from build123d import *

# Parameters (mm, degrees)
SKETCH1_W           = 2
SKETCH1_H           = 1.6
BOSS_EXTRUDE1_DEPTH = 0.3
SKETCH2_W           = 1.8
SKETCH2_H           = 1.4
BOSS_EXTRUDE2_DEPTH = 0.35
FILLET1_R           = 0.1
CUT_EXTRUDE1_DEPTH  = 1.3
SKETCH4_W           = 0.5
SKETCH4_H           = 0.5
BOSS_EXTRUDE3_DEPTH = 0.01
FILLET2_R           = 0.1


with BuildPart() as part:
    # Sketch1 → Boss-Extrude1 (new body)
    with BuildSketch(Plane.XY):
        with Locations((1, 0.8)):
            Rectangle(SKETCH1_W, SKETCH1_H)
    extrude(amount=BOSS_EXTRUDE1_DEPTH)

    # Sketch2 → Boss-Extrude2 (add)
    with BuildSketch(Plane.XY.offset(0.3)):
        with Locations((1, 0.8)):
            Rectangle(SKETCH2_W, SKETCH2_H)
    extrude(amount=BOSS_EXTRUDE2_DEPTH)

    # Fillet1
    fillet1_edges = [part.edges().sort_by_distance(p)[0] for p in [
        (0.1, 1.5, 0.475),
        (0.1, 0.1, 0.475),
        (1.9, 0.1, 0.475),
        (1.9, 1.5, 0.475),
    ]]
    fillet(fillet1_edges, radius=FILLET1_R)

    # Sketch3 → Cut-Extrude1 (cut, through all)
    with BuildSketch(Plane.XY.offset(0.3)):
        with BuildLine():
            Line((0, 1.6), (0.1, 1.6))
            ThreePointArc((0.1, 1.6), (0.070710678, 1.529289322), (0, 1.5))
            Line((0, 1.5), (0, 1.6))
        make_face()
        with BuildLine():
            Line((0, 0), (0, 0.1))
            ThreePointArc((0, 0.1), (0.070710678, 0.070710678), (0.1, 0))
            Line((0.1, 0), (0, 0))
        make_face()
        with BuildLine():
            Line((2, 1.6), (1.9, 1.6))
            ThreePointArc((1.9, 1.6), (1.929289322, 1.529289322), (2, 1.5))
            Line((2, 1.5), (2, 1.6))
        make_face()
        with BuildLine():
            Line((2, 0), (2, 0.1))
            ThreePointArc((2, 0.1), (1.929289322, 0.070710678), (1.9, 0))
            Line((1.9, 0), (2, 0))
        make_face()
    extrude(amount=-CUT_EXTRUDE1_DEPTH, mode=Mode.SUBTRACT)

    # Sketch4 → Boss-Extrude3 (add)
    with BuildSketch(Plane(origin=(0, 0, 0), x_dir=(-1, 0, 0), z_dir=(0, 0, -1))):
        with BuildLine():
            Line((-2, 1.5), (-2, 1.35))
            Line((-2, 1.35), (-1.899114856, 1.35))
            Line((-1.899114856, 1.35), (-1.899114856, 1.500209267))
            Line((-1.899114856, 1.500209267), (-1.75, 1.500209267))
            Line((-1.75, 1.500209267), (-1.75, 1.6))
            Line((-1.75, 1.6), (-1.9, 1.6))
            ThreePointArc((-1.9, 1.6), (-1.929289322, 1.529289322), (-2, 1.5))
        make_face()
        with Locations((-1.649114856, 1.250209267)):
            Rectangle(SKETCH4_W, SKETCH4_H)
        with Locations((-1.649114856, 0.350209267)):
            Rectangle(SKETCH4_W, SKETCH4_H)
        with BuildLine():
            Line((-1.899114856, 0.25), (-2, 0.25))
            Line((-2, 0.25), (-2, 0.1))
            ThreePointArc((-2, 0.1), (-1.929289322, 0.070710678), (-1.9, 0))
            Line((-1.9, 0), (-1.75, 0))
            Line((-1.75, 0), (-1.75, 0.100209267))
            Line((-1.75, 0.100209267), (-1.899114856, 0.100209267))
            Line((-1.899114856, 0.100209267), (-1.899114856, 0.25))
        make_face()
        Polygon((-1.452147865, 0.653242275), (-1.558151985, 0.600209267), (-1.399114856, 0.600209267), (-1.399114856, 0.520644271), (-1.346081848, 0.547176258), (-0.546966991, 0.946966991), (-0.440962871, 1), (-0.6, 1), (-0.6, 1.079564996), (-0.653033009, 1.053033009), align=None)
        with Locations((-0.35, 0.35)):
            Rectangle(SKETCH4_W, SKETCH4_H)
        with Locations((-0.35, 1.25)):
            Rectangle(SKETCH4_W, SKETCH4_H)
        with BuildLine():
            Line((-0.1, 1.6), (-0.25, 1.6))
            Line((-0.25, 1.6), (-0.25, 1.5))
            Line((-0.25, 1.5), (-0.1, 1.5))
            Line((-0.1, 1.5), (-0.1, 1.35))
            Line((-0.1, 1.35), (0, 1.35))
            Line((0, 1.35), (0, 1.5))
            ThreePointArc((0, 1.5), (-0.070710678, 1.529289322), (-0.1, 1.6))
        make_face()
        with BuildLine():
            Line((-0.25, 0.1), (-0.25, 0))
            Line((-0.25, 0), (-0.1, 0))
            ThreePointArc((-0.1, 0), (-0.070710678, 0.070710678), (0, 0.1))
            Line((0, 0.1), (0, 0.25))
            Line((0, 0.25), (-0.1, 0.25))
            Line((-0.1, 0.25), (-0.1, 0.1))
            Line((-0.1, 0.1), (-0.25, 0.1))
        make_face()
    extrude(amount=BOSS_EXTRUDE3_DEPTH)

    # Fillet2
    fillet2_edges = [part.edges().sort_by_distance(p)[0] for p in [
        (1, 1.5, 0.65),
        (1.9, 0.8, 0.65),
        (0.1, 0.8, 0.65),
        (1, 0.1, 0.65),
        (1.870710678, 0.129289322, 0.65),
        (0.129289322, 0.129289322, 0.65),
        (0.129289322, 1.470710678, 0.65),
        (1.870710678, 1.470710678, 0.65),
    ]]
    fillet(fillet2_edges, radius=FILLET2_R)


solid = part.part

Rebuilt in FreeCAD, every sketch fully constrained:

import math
import FreeCAD as App
import Part
import Sketcher
from FreeCAD import Vector
Q = App.Units.Quantity


def edges_at(feature, points):
    """Names of the edges that pass closest to the given points."""
    edges = feature.Shape.Edges
    near = lambda p: min(range(len(edges)), key=lambda i: edges[i].distToShape(Part.Vertex(*p))[0])
    return sorted({f"Edge{near(p) + 1}" for p in points})

doc = App.newDocument("Part")
body = doc.addObject("PartDesign::Body", "Body")

# Sketch on XY plane
sketch1 = doc.addObject("Sketcher::SketchObject", "Sketch")
body.addObject(sketch1)
sketch1.AttachmentSupport = (doc.XY_Plane, [""])
sketch1.MapMode = "FlatFace"
sketch1.addGeometry([
    Part.LineSegment(Vector(0, 1.6, 0), Vector(0, 0, 0)),
    Part.LineSegment(Vector(0, 0, 0), Vector(2, 0, 0)),
    Part.LineSegment(Vector(2, 0, 0), Vector(2, 1.6, 0)),
    Part.LineSegment(Vector(2, 1.6, 0), Vector(0, 1.6, 0)),
], False)
sketch1.addConstraint([
    Sketcher.Constraint("Coincident", 0, 2, 1, 1),
    Sketcher.Constraint("Coincident", 1, 2, 2, 1),
    Sketcher.Constraint("Coincident", 2, 2, 3, 1),
    Sketcher.Constraint("Coincident", 3, 2, 0, 1),
    Sketcher.Constraint("Vertical", 0),
    Sketcher.Constraint("Horizontal", 1),
    Sketcher.Constraint("Vertical", 2),
    Sketcher.Constraint("Horizontal", 3),
    Sketcher.Constraint("Coincident", 0, 2, -1, 1),
    Sketcher.Constraint("DistanceX", 1, 1, 1, 2, Q("2 mm")),
    Sketcher.Constraint("DistanceY", 0, 2, 0, 1, Q("1.6 mm")),
])
pad1 = doc.addObject("PartDesign::Pad", "Pad")
body.addObject(pad1)
pad1.Profile = sketch1
pad1.Length = 0.3

# Sketch on XY plane
sketch2 = doc.addObject("Sketcher::SketchObject", "Sketch001")
body.addObject(sketch2)
sketch2.AttachmentSupport = (doc.XY_Plane, [""])
sketch2.MapMode = "FlatFace"
sketch2.AttachmentOffset = App.Placement(Vector(0, 0, 0.3), App.Rotation())
sketch2.addGeometry([
    Part.LineSegment(Vector(0.1, 1.5, 0), Vector(0.1, 0.1, 0)),
    Part.LineSegment(Vector(0.1, 0.1, 0), Vector(1.9, 0.1, 0)),
    Part.LineSegment(Vector(1.9, 0.1, 0), Vector(1.9, 1.5, 0)),
    Part.LineSegment(Vector(1.9, 1.5, 0), Vector(0.1, 1.5, 0)),
], False)
sketch2.addConstraint([
    Sketcher.Constraint("Coincident", 0, 2, 1, 1),
    Sketcher.Constraint("Coincident", 1, 2, 2, 1),
    Sketcher.Constraint("Coincident", 2, 2, 3, 1),
    Sketcher.Constraint("Coincident", 3, 2, 0, 1),
    Sketcher.Constraint("Vertical", 0),
    Sketcher.Constraint("Horizontal", 1),
    Sketcher.Constraint("Vertical", 2),
    Sketcher.Constraint("Horizontal", 3),
    Sketcher.Constraint("DistanceX", 1, 1, 1, 2, Q("1.8 mm")),
    Sketcher.Constraint("DistanceY", 0, 2, 0, 1, Q("1.4 mm")),
    Sketcher.Constraint("DistanceX", -1, 1, 0, 2, Q("0.1 mm")),
    Sketcher.Constraint("DistanceY", -1, 1, 0, 2, Q("0.1 mm")),
])
pad2 = doc.addObject("PartDesign::Pad", "Pad001")
body.addObject(pad2)
pad2.Profile = sketch2
pad2.Length = 0.35
doc.recompute()

fillet = doc.addObject("PartDesign::Fillet", "Fillet")
body.addObject(fillet)
fillet.Base = (pad2, edges_at(pad2, [
    (0.1, 1.5, 0.475),
    (0.1, 0.1, 0.475),
    (1.9, 0.1, 0.475),
    (1.9, 1.5, 0.475),
]))
fillet.Radius = 0.1

# Sketch on XY plane
sketch3 = doc.addObject("Sketcher::SketchObject", "Sketch002")
body.addObject(sketch3)
sketch3.AttachmentSupport = (doc.XY_Plane, [""])
sketch3.MapMode = "FlatFace"
sketch3.AttachmentOffset = App.Placement(Vector(0, 0, 0.3), App.Rotation())
sketch3.addGeometry([
    Part.LineSegment(Vector(0.1, 1.6, 0), Vector(0, 1.6, 0)),  # 0
    Part.LineSegment(Vector(0, 1.6, 0), Vector(0, 1.5, 0)),  # 1
    Part.ArcOfCircle(Part.Circle(Vector(0, 1.6, 0), Vector(0, 0, 1), 0.1), math.radians(-90), math.radians(0)),  # 2
    Part.LineSegment(Vector(0, 0.1, 0), Vector(0, 0, 0)),  # 3
    Part.LineSegment(Vector(0, 0, 0), Vector(0.1, 0, 0)),  # 4
    Part.ArcOfCircle(Part.Circle(Vector(0, 0, 0), Vector(0, 0, 1), 0.1), math.radians(0), math.radians(90)),  # 5
    Part.LineSegment(Vector(2, 1.6, 0), Vector(1.9, 1.6, 0)),  # 6
    Part.ArcOfCircle(Part.Circle(Vector(2, 1.6, 0), Vector(0, 0, 1), 0.1), math.radians(180), math.radians(270)),  # 7
    Part.LineSegment(Vector(2, 1.5, 0), Vector(2, 1.6, 0)),  # 8
    Part.LineSegment(Vector(2, 0, 0), Vector(2, 0.1, 0)),  # 9
    Part.ArcOfCircle(Part.Circle(Vector(2, 0, 0), Vector(0, 0, 1), 0.1), math.radians(90), math.radians(180)),  # 10
    Part.LineSegment(Vector(1.9, 0, 0), Vector(2, 0, 0)),  # 11
], False)
sketch3.addConstraint([
    Sketcher.Constraint("Coincident", 0, 2, 1, 1),
    Sketcher.Constraint("Coincident", 1, 2, 2, 1),
    Sketcher.Constraint("Coincident", 2, 2, 0, 1),
    Sketcher.Constraint("Coincident", 3, 2, 4, 1),
    Sketcher.Constraint("Coincident", 4, 2, 5, 1),
    Sketcher.Constraint("Coincident", 5, 2, 3, 1),
    Sketcher.Constraint("Coincident", 6, 2, 7, 1),
    Sketcher.Constraint("Coincident", 7, 2, 8, 1),
    Sketcher.Constraint("Coincident", 8, 2, 6, 1),
    Sketcher.Constraint("Coincident", 9, 2, 10, 1),
    Sketcher.Constraint("Coincident", 10, 2, 11, 1),
    Sketcher.Constraint("Coincident", 11, 2, 9, 1),
    Sketcher.Constraint("Horizontal", 0),
    Sketcher.Constraint("Vertical", 1),
    Sketcher.Constraint("Vertical", 3),
    Sketcher.Constraint("Horizontal", 4),
    Sketcher.Constraint("Horizontal", 6),
    Sketcher.Constraint("Vertical", 8),
    Sketcher.Constraint("Vertical", 9),
    Sketcher.Constraint("Horizontal", 11),
    Sketcher.Constraint("Coincident", 5, 3, -1, 1),
    Sketcher.Constraint("Coincident", 3, 2, -1, 1),
    Sketcher.Constraint("Coincident", 0, 2, 2, 3),
    Sketcher.Constraint("Coincident", 8, 2, 7, 3),
    Sketcher.Constraint("Coincident", 11, 2, 10, 3),
    Sketcher.Constraint("Equal", 2, 5),
    Sketcher.Constraint("Equal", 5, 7),
    Sketcher.Constraint("Equal", 7, 10),
    Sketcher.Constraint("PointOnObject", 2, 3, -2),
    Sketcher.Constraint("PointOnObject", 10, 3, -1),
    Sketcher.Constraint("Horizontal", 2, 3, 7, 3),
    Sketcher.Constraint("Vertical", 7, 3, 10, 3),
    Sketcher.Constraint("Radius", 2, Q("0.1 mm")),
    Sketcher.Constraint("DistanceX", -1, 1, 7, 3, Q("2 mm")),
    Sketcher.Constraint("DistanceY", -1, 1, 2, 3, Q("1.6 mm")),
])
pocket1 = doc.addObject("PartDesign::Pocket", "Pocket")
body.addObject(pocket1)
pocket1.Profile = sketch3
pocket1.Type = "ThroughAll"

# Sketch on XY plane
sketch4 = doc.addObject("Sketcher::SketchObject", "Sketch003")
body.addObject(sketch4)
sketch4.AttachmentSupport = (doc.XY_Plane, [""])
sketch4.MapMode = "FlatFace"
sketch4.addGeometry([
    Part.LineSegment(Vector(2, 1.5, 0), Vector(2, 1.35, 0)),  # 0
    Part.LineSegment(Vector(2, 1.35, 0), Vector(1.899115, 1.35, 0)),  # 1
    Part.LineSegment(Vector(1.899115, 1.35, 0), Vector(1.899115, 1.000209, 0)),  # 2
    Part.LineSegment(Vector(1.899115, 1.000209, 0), Vector(1.399115, 1.000209, 0)),  # 3
    Part.LineSegment(Vector(1.399115, 1.000209, 0), Vector(1.399115, 1.500209, 0)),  # 4
    Part.LineSegment(Vector(1.399115, 1.500209, 0), Vector(1.75, 1.500209, 0)),  # 5
    Part.LineSegment(Vector(1.75, 1.500209, 0), Vector(1.75, 1.6, 0)),  # 6
    Part.LineSegment(Vector(1.75, 1.6, 0), Vector(1.9, 1.6, 0)),  # 7
    Part.ArcOfCircle(Part.Circle(Vector(2, 1.6, 0), Vector(0, 0, 1), 0.1), math.radians(180), math.radians(270)),  # 8
    Part.LineSegment(Vector(1.899115, 0.600209, 0), Vector(1.899115, 0.25, 0)),  # 9
    Part.LineSegment(Vector(1.899115, 0.25, 0), Vector(2, 0.25, 0)),  # 10
    Part.LineSegment(Vector(2, 0.25, 0), Vector(2, 0.1, 0)),  # 11
    Part.ArcOfCircle(Part.Circle(Vector(2, 0, 0), Vector(0, 0, 1), 0.1), math.radians(90), math.radians(180)),  # 12
    Part.LineSegment(Vector(1.9, 0, 0), Vector(1.75, 0, 0)),  # 13
    Part.LineSegment(Vector(1.75, 0, 0), Vector(1.75, 0.100209, 0)),  # 14
    Part.LineSegment(Vector(1.75, 0.100209, 0), Vector(1.399115, 0.100209, 0)),  # 15
    Part.LineSegment(Vector(1.399115, 0.100209, 0), Vector(1.399115, 0.520644, 0)),  # 16
    Part.LineSegment(Vector(1.399115, 0.520644, 0), Vector(1.346082, 0.547176, 0)),  # 17
    Part.LineSegment(Vector(1.346082, 0.547176, 0), Vector(0.546967, 0.946967, 0)),  # 18
    Part.LineSegment(Vector(0.546967, 0.946967, 0), Vector(0.440963, 1, 0)),  # 19
    Part.LineSegment(Vector(0.440963, 1, 0), Vector(0.1, 1, 0)),  # 20
    Part.LineSegment(Vector(0.1, 1, 0), Vector(0.1, 1.35, 0)),  # 21
    Part.LineSegment(Vector(0.1, 1.35, 0), Vector(0, 1.35, 0)),  # 22
    Part.LineSegment(Vector(0, 1.35, 0), Vector(0, 1.5, 0)),  # 23
    Part.ArcOfCircle(Part.Circle(Vector(0, 1.6, 0), Vector(0, 0, 1), 0.1), math.radians(-90), math.radians(0)),  # 24
    Part.LineSegment(Vector(0.1, 1.6, 0), Vector(0.25, 1.6, 0)),  # 25
    Part.LineSegment(Vector(0.25, 1.6, 0), Vector(0.25, 1.5, 0)),  # 26
    Part.LineSegment(Vector(0.25, 1.5, 0), Vector(0.6, 1.5, 0)),  # 27
    Part.LineSegment(Vector(0.6, 1.5, 0), Vector(0.6, 1.079565, 0)),  # 28
    Part.LineSegment(Vector(0.6, 1.079565, 0), Vector(0.653033, 1.053033, 0)),  # 29
    Part.LineSegment(Vector(0.653033, 1.053033, 0), Vector(1.452148, 0.653242, 0)),  # 30
    Part.LineSegment(Vector(1.452148, 0.653242, 0), Vector(1.558152, 0.600209, 0)),  # 31
    Part.LineSegment(Vector(1.558152, 0.600209, 0), Vector(1.899115, 0.600209, 0)),  # 32
    Part.LineSegment(Vector(0.6, 0.6, 0), Vector(0.6, 0.1, 0)),  # 33
    Part.LineSegment(Vector(0.6, 0.1, 0), Vector(0.25, 0.1, 0)),  # 34
    Part.LineSegment(Vector(0.25, 0.1, 0), Vector(0.25, 0, 0)),  # 35
    Part.LineSegment(Vector(0.25, 0, 0), Vector(0.1, 0, 0)),  # 36
    Part.ArcOfCircle(Part.Circle(Vector(0, 0, 0), Vector(0, 0, 1), 0.1), math.radians(0), math.radians(90)),  # 37
    Part.LineSegment(Vector(0, 0.1, 0), Vector(0, 0.25, 0)),  # 38
    Part.LineSegment(Vector(0, 0.25, 0), Vector(0.1, 0.25, 0)),  # 39
    Part.LineSegment(Vector(0.1, 0.25, 0), Vector(0.1, 0.6, 0)),  # 40
    Part.LineSegment(Vector(0.1, 0.6, 0), Vector(0.6, 0.6, 0)),  # 41
], False)
sketch4.addConstraint([
    Sketcher.Constraint("Coincident", 0, 2, 1, 1),
    Sketcher.Constraint("Coincident", 1, 2, 2, 1),
    Sketcher.Constraint("Coincident", 2, 2, 3, 1),
    Sketcher.Constraint("Coincident", 3, 2, 4, 1),
    Sketcher.Constraint("Coincident", 4, 2, 5, 1),
    Sketcher.Constraint("Coincident", 5, 2, 6, 1),
    Sketcher.Constraint("Coincident", 6, 2, 7, 1),
    Sketcher.Constraint("Coincident", 7, 2, 8, 1),
    Sketcher.Constraint("Coincident", 8, 2, 0, 1),
    Sketcher.Constraint("Coincident", 9, 2, 10, 1),
    Sketcher.Constraint("Coincident", 10, 2, 11, 1),
    Sketcher.Constraint("Coincident", 11, 2, 12, 1),
    Sketcher.Constraint("Coincident", 12, 2, 13, 1),
    Sketcher.Constraint("Coincident", 13, 2, 14, 1),
    Sketcher.Constraint("Coincident", 14, 2, 15, 1),
    Sketcher.Constraint("Coincident", 15, 2, 16, 1),
    Sketcher.Constraint("Coincident", 16, 2, 17, 1),
    Sketcher.Constraint("Coincident", 17, 2, 18, 1),
    Sketcher.Constraint("Coincident", 18, 2, 19, 1),
    Sketcher.Constraint("Coincident", 19, 2, 20, 1),
    Sketcher.Constraint("Coincident", 20, 2, 21, 1),
    Sketcher.Constraint("Coincident", 21, 2, 22, 1),
    Sketcher.Constraint("Coincident", 22, 2, 23, 1),
    Sketcher.Constraint("Coincident", 23, 2, 24, 1),
    Sketcher.Constraint("Coincident", 24, 2, 25, 1),
    Sketcher.Constraint("Coincident", 25, 2, 26, 1),
    Sketcher.Constraint("Coincident", 26, 2, 27, 1),
    Sketcher.Constraint("Coincident", 27, 2, 28, 1),
    Sketcher.Constraint("Coincident", 28, 2, 29, 1),
    Sketcher.Constraint("Coincident", 29, 2, 30, 1),
    Sketcher.Constraint("Coincident", 30, 2, 31, 1),
    Sketcher.Constraint("Coincident", 31, 2, 32, 1),
    Sketcher.Constraint("Coincident", 32, 2, 9, 1),
    Sketcher.Constraint("Coincident", 33, 2, 34, 1),
    Sketcher.Constraint("Coincident", 34, 2, 35, 1),
    Sketcher.Constraint("Coincident", 35, 2, 36, 1),
    Sketcher.Constraint("Coincident", 36, 2, 37, 1),
    Sketcher.Constraint("Coincident", 37, 2, 38, 1),
    Sketcher.Constraint("Coincident", 38, 2, 39, 1),
    Sketcher.Constraint("Coincident", 39, 2, 40, 1),
    Sketcher.Constraint("Coincident", 40, 2, 41, 1),
    Sketcher.Constraint("Coincident", 41, 2, 33, 1),
    Sketcher.Constraint("Vertical", 0),
    Sketcher.Constraint("Horizontal", 1),
    Sketcher.Constraint("Vertical", 2),
    Sketcher.Constraint("Horizontal", 3),
    Sketcher.Constraint("Vertical", 4),
    Sketcher.Constraint("Horizontal", 5),
    Sketcher.Constraint("Vertical", 6),
    Sketcher.Constraint("Horizontal", 7),
    Sketcher.Constraint("Vertical", 9),
    Sketcher.Constraint("Horizontal", 10),
    Sketcher.Constraint("Vertical", 11),
    Sketcher.Constraint("Horizontal", 13),
    Sketcher.Constraint("Vertical", 14),
    Sketcher.Constraint("Horizontal", 15),
    Sketcher.Constraint("Vertical", 16),
    Sketcher.Constraint("Horizontal", 20),
    Sketcher.Constraint("Vertical", 21),
    Sketcher.Constraint("Horizontal", 22),
    Sketcher.Constraint("Vertical", 23),
    Sketcher.Constraint("Horizontal", 25),
    Sketcher.Constraint("Vertical", 26),
    Sketcher.Constraint("Horizontal", 27),
    Sketcher.Constraint("Vertical", 28),
    Sketcher.Constraint("Horizontal", 32),
    Sketcher.Constraint("Vertical", 33),
    Sketcher.Constraint("Horizontal", 34),
    Sketcher.Constraint("Vertical", 35),
    Sketcher.Constraint("Horizontal", 36),
    Sketcher.Constraint("Vertical", 38),
    Sketcher.Constraint("Horizontal", 39),
    Sketcher.Constraint("Vertical", 40),
    Sketcher.Constraint("Horizontal", 41),
    Sketcher.Constraint("Coincident", 37, 3, -1, 1),
    Sketcher.Constraint("Equal", 8, 12),
    Sketcher.Constraint("Equal", 12, 24),
    Sketcher.Constraint("Equal", 24, 37),
    Sketcher.Constraint("PointOnObject", 12, 3, -1),
    Sketcher.Constraint("PointOnObject", 24, 3, -2),
    Sketcher.Constraint("PointOnObject", 12, 2, -1),
    Sketcher.Constraint("PointOnObject", 22, 2, -2),
    Sketcher.Constraint("PointOnObject", 35, 2, -1),
    Sketcher.Constraint("PointOnObject", 37, 2, -2),
    Sketcher.Constraint("Parallel", 17, 18),
    Sketcher.Constraint("Parallel", 18, 19),
    Sketcher.Constraint("Parallel", 19, 29),
    Sketcher.Constraint("Parallel", 29, 30),
    Sketcher.Constraint("Parallel", 30, 31),
    Sketcher.Constraint("Horizontal", 8, 3, 24, 3),
    Sketcher.Constraint("Horizontal", 24, 3, 6, 2),
    Sketcher.Constraint("Horizontal", 1, 2, 21, 2),
    Sketcher.Constraint("Horizontal", 7, 2, 24, 2),
    Sketcher.Constraint("Horizontal", 23, 2, 26, 2),
    Sketcher.Constraint("Horizontal", 11, 2, 33, 2),
    Sketcher.Constraint("Horizontal", 10, 2, 38, 2),
    Sketcher.Constraint("Vertical", 8, 3, 12, 3),
    Sketcher.Constraint("Vertical", 12, 3, 0, 2),
    Sketcher.Constraint("Vertical", 2, 2, 9, 2),
    Sketcher.Constraint("Vertical", 8, 2, 10, 2),
    Sketcher.Constraint("Vertical", 6, 2, 13, 2),
    Sketcher.Constraint("Vertical", 4, 2, 15, 2),
    Sketcher.Constraint("Vertical", 21, 2, 24, 2),
    Sketcher.Constraint("Vertical", 28, 2, 33, 2),
    Sketcher.Constraint("Vertical", 26, 2, 34, 2),
    Sketcher.Constraint("Vertical", 36, 2, 39, 2),
    Sketcher.Constraint("Equal", 13, 25),
    Sketcher.Constraint("Equal", 20, 32),
    Sketcher.Constraint("Equal", 3, 41),
    Sketcher.Constraint("Equal", 36, 0),
    Sketcher.Constraint("Equal", 41, 4),
    Sketcher.Constraint("Equal", 0, 11),
    Sketcher.Constraint("Equal", 34, 21),
    Sketcher.Constraint("Equal", 16, 28),
    Sketcher.Constraint("Equal", 4, 33),
    Sketcher.Constraint("Equal", 17, 29),
    Sketcher.Constraint("Equal", 18, 30),
    Sketcher.Constraint("Radius", 8, Q("0.1 mm")),
    Sketcher.Constraint("DistanceX", 3, 2, 3, 1, Q("0.5 mm")),
    Sketcher.Constraint("DistanceX", -1, 1, 8, 3, Q("2 mm")),
    Sketcher.Constraint("DistanceY", -1, 1, 19, 2, Q("1 mm")),
    Sketcher.Constraint("DistanceX", 7, 1, 7, 2, Q("0.15 mm")),
    Sketcher.Constraint("DistanceY", 31, 2, 3, 2, Q("0.4 mm")),
    Sketcher.Constraint("Distance", 17, Q("0.0593 mm")),
    Sketcher.Constraint("DistanceY", 2, 2, 2, 1, Q("0.349791 mm")),
    Sketcher.Constraint("DistanceY", 18, 2, 28, 2, Q("0.132598 mm")),
    Sketcher.Constraint("Distance", 18, Q("0.893542 mm")),
    Sketcher.Constraint("Distance", 19, Q("0.11853 mm")),
    Sketcher.Constraint("DistanceX", 1, 2, 1, 1, Q("0.100885 mm")),
])
pad3 = doc.addObject("PartDesign::Pad", "Pad002")
body.addObject(pad3)
pad3.Profile = sketch4
pad3.Length = 0.01
pad3.Reversed = True
doc.recompute()

fillet2 = doc.addObject("PartDesign::Fillet", "Fillet001")
body.addObject(fillet2)
fillet2.Base = (pad3, edges_at(pad3, [
    (1, 1.5, 0.65),
    (1.9, 0.8, 0.65),
    (0.1, 0.8, 0.65),
    (1, 0.1, 0.65),
    (1.871, 0.129, 0.65),
    (0.129, 0.129, 0.65),
    (0.129, 1.471, 0.65),
    (1.871, 1.471, 0.65),
]))
fillet2.Radius = 0.1

doc.recompute()
